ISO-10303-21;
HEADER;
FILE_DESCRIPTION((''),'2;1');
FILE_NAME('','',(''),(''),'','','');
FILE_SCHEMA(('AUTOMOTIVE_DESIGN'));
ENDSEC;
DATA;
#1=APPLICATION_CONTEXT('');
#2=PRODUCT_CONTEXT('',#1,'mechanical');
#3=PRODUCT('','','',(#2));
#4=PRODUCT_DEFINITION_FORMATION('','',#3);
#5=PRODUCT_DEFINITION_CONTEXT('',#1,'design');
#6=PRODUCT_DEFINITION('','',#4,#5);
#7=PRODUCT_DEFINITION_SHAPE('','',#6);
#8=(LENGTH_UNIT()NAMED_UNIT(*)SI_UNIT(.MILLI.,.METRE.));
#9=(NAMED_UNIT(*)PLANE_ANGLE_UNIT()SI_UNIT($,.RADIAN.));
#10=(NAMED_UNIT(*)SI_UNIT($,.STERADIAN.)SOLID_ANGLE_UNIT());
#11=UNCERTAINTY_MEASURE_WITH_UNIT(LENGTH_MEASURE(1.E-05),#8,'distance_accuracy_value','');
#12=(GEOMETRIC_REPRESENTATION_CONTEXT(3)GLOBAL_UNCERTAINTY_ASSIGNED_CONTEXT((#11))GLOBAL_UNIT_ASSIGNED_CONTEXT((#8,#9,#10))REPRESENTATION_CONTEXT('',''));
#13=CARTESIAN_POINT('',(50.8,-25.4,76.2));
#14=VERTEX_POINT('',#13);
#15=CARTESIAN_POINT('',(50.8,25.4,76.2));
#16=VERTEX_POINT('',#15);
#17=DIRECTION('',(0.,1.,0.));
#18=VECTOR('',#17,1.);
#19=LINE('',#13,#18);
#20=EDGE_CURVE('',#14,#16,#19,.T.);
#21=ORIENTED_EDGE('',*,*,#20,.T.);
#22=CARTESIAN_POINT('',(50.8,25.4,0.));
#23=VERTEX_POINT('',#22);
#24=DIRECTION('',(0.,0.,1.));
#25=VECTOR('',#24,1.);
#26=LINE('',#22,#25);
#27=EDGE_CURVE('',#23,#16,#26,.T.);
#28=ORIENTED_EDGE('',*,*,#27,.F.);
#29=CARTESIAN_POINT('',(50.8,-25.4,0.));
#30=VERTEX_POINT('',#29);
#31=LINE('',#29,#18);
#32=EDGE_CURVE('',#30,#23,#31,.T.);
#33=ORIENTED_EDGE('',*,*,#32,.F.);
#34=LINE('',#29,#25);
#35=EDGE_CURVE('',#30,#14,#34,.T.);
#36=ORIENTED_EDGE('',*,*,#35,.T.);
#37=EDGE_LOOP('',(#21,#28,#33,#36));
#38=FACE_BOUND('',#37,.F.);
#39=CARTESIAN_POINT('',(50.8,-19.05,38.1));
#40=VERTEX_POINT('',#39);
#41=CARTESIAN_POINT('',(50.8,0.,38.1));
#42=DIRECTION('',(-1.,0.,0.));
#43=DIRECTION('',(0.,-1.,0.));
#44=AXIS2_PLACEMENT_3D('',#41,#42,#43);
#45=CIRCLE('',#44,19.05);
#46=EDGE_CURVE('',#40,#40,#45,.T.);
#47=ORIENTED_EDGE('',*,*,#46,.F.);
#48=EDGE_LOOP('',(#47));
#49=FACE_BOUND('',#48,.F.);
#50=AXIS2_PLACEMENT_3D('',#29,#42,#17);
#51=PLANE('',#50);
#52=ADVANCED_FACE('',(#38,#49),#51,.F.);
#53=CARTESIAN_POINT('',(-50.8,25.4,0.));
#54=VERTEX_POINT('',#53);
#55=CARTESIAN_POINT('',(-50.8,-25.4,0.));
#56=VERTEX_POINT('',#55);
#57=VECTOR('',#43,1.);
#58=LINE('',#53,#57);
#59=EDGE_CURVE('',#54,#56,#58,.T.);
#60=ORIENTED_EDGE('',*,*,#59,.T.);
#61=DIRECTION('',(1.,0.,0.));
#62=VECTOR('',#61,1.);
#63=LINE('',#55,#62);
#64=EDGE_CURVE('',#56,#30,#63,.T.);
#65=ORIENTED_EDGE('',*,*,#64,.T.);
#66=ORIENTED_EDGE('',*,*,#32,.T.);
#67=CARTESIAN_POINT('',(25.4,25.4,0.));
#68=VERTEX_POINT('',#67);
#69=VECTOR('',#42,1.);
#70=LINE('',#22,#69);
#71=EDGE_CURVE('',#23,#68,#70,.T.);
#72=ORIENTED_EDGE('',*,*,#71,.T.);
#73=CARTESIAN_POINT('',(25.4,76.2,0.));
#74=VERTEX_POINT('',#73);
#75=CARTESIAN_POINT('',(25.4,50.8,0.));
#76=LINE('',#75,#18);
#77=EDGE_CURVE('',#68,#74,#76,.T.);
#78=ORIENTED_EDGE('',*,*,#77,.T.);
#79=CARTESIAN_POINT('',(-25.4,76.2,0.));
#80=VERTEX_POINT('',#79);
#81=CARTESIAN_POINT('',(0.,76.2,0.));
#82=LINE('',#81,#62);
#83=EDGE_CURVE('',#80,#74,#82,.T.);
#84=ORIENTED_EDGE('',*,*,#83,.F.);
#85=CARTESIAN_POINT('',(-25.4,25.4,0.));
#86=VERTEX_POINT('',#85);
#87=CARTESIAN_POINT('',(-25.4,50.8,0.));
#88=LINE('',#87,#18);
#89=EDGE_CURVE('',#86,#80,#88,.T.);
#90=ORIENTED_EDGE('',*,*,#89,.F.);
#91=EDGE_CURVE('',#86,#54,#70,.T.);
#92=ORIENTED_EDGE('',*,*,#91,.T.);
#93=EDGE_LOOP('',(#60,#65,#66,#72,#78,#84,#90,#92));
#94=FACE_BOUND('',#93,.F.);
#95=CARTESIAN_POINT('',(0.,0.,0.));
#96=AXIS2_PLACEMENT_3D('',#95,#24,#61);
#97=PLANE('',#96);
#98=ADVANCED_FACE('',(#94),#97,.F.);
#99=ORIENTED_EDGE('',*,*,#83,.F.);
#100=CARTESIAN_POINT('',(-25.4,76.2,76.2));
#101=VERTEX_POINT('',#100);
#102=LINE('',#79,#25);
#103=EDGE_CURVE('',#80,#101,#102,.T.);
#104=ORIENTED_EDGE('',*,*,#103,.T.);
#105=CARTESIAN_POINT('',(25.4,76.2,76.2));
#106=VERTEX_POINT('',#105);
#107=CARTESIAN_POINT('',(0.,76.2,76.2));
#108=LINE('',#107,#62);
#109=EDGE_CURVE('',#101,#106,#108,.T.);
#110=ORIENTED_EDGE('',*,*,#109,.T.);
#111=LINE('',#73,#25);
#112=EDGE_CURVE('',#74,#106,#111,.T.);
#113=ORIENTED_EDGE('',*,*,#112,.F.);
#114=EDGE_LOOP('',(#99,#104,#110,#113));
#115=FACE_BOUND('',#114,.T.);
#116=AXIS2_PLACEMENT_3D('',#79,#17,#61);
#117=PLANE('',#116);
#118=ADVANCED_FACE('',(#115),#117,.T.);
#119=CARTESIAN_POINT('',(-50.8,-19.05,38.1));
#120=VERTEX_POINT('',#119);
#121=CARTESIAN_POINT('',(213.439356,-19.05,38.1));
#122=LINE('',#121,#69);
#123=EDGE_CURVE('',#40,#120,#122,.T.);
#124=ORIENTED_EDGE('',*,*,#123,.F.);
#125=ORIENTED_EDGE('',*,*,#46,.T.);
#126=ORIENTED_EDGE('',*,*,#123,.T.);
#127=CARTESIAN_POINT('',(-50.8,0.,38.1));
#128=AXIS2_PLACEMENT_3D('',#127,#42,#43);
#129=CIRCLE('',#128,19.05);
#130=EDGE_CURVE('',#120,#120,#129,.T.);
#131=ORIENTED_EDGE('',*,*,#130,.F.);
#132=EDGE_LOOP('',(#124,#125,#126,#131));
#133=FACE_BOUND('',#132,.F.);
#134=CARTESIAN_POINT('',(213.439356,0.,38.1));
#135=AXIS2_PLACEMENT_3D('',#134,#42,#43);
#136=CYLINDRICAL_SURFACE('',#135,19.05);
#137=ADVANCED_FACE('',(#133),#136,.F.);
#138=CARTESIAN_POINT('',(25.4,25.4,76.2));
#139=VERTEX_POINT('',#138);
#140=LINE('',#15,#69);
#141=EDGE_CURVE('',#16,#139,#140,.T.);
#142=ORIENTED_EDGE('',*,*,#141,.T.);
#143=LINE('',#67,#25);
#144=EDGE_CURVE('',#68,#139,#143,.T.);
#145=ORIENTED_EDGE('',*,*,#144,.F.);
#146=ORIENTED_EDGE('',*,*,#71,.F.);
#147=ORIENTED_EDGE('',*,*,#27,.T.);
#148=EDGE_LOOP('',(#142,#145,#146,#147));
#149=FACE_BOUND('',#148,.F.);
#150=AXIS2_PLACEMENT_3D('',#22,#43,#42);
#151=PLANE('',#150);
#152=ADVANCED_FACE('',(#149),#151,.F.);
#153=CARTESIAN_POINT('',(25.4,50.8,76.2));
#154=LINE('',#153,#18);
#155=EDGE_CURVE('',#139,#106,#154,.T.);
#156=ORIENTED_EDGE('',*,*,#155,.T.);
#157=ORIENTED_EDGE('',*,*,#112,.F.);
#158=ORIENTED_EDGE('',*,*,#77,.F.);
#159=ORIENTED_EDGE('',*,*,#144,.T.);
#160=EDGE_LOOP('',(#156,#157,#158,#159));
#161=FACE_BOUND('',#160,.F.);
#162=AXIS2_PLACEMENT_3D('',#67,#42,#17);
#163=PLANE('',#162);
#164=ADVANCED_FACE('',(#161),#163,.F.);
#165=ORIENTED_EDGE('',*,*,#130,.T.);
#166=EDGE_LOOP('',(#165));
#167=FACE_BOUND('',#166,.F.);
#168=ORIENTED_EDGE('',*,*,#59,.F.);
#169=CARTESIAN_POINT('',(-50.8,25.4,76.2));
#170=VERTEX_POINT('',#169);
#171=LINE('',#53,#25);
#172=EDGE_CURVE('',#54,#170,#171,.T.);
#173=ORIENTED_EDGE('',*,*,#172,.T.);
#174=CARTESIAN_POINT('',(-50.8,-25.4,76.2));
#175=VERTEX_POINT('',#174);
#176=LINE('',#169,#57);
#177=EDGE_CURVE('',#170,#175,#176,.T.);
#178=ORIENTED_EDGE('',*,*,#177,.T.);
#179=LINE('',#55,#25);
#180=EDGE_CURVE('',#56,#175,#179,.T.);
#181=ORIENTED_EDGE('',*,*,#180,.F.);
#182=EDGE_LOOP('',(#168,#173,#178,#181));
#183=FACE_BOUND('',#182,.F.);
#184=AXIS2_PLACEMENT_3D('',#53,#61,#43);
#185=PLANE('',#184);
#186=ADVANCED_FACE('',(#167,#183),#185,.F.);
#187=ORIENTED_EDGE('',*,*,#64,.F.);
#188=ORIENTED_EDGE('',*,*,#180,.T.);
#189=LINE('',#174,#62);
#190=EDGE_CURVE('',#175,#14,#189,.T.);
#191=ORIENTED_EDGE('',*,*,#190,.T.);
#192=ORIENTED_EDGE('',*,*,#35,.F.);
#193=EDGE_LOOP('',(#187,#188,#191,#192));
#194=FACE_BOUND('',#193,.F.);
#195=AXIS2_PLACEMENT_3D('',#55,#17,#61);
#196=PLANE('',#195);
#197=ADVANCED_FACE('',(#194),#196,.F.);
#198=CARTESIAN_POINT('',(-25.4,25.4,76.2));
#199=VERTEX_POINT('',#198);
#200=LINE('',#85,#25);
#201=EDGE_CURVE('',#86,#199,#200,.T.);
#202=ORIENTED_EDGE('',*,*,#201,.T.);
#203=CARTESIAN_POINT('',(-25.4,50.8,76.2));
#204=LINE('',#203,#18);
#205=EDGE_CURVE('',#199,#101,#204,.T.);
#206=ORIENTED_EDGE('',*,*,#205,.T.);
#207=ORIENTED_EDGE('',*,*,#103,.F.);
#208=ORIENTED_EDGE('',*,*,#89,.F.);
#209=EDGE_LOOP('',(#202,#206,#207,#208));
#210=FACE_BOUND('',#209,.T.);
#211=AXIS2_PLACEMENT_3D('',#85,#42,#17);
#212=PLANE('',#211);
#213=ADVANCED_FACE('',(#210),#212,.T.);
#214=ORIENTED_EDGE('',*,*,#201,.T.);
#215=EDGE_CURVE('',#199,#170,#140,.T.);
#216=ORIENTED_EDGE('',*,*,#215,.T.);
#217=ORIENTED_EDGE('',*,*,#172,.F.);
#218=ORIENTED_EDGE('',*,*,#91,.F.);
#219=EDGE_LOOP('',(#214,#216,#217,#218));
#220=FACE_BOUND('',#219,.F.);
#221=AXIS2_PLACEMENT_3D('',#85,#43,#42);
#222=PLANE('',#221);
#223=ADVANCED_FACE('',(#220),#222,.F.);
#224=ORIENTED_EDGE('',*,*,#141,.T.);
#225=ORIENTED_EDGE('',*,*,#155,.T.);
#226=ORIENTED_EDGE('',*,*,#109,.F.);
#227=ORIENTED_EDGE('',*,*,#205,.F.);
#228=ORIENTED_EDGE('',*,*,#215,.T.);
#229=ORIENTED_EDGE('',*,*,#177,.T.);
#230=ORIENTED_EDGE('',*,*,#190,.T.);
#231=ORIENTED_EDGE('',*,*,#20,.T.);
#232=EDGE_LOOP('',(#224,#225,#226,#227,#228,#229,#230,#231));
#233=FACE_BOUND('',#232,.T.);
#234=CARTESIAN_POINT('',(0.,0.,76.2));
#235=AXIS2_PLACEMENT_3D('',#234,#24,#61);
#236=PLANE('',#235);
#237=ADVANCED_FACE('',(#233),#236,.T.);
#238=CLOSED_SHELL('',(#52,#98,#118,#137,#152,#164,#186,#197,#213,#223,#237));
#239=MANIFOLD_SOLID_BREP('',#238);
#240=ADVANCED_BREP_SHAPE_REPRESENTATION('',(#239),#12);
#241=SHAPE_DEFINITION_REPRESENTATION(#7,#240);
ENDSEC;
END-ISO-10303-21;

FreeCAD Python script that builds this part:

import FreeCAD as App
import Part
import Sketcher
from FreeCAD import Vector
Q = App.Units.Quantity


def add_polygon(sketch, points):
    """Adds a closed chain of lines whose ends are joined by coincident constraints."""
    first, n = sketch.GeometryCount, len(points)
    for a, b in zip(points, points[1:] + points[:1]):
        sketch.addGeometry(Part.LineSegment(App.Vector(*a, 0), App.Vector(*b, 0)), False)
    for i in range(n):
        sketch.addConstraint(Sketcher.Constraint("Coincident", first + i, 2, first + (i + 1) % n, 1))

doc = App.newDocument("Part")
body = doc.addObject("PartDesign::Body", "Body")

# Sketch on XY plane
sketch1 = body.newObject("Sketcher::SketchObject", "Sketch")
sketch1.AttachmentSupport = (doc.getObject("XY_Plane"), [""])
sketch1.MapMode = "FlatFace"
add_polygon(sketch1, [(-51, 25), (-51, -25), (51, -25), (51, 25), (25, 25), (25, 76), (-25, 76), (-25, 25)])  # lines 0-7
sketch1.addConstraint([
    Sketcher.Constraint("Vertical", 0),
    Sketcher.Constraint("Horizontal", 1),
    Sketcher.Constraint("Vertical", 2),
    Sketcher.Constraint("Horizontal", 3),
    Sketcher.Constraint("Vertical", 4),
    Sketcher.Constraint("Horizontal", 5),
    Sketcher.Constraint("Vertical", 6),
    Sketcher.Constraint("Horizontal", 7),
    Sketcher.Constraint("Symmetric", 0, 2, 2, 2, -1, 1),
    Sketcher.Constraint("Symmetric", 3, 2, 6, 2, -2),
    Sketcher.Constraint("Equal", 5, 0),
    Sketcher.Constraint("Equal", 2, 4),
    Sketcher.Constraint("DistanceX", 1, 1, 1, 2, Q("4 in")),
    Sketcher.Constraint("DistanceX", 3, 2, 3, 1, Q("1 in")),
])
pad1 = body.newObject("PartDesign::Pad", "Pad")
pad1.Profile = sketch1
pad1.Length = Q("3 in")

# Sketch on YZ plane
sketch2 = body.newObject("Sketcher::SketchObject", "Sketch001")
sketch2.AttachmentSupport = (doc.getObject("YZ_Plane"), [""])
sketch2.MapMode = "FlatFace"
sketch2.AttachmentOffset = App.Placement(Vector(0, 0, 2 * 25.4), App.Rotation())
sketch2.addGeometry(Part.Circle(Vector(0, 38, 0), Vector(0, 0, 1), 19), False)
sketch2.addConstraint([
    Sketcher.Constraint("PointOnObject", 0, 3, -2),
    Sketcher.Constraint("Diameter", 0, Q("1.5 in")),
    Sketcher.Constraint("DistanceY", -1, 1, 0, 3, Q("1.5 in")),
])
doc.recompute()
hole = body.newObject("PartDesign::Hole", "Hole")
hole.Profile = sketch2
hole.ThreadType = "None"
hole.Diameter = Q("1.5 in")
hole.DepthType = "ThroughAll"

doc.recompute()
